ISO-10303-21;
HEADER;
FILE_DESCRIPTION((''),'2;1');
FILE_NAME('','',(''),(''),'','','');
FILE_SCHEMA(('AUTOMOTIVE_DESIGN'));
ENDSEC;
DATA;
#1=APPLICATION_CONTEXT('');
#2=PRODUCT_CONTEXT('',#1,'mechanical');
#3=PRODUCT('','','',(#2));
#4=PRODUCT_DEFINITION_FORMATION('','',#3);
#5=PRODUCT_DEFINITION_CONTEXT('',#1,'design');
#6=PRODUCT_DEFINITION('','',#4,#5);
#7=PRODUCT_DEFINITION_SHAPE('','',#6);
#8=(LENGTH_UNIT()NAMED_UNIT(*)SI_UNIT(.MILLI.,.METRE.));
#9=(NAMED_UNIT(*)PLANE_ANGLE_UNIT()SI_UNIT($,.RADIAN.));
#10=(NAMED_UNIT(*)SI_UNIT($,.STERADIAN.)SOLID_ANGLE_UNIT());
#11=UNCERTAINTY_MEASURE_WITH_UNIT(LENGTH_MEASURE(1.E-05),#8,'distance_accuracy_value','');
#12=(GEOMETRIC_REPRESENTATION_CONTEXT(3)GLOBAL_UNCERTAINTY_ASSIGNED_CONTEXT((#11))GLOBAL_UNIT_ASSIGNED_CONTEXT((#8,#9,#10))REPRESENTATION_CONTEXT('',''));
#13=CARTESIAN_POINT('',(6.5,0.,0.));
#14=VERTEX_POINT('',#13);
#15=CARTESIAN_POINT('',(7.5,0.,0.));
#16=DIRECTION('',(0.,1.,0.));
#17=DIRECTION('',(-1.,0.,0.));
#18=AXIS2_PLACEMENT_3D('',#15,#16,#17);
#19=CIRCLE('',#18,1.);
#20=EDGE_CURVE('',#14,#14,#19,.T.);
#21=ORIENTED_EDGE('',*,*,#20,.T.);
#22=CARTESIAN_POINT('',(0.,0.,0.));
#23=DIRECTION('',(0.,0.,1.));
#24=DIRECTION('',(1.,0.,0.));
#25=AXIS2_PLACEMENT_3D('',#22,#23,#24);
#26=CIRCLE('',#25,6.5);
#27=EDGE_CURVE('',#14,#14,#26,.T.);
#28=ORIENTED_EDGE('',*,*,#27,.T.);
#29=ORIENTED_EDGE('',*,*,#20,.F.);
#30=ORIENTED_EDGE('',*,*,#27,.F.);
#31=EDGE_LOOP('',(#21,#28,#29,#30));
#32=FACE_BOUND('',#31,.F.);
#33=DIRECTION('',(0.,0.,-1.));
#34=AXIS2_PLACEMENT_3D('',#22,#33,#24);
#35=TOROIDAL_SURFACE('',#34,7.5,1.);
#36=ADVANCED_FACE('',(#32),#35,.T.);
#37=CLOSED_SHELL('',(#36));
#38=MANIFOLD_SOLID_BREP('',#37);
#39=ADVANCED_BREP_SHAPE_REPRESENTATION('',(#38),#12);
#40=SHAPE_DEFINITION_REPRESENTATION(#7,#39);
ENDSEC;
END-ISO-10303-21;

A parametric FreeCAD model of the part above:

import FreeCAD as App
import Part
import Sketcher

V = App.Vector

doc = App.newDocument("Part")
body = doc.addObject("PartDesign::Body", "Body")

# Sketch on XZ plane
sketch1 = body.newObject("Sketcher::SketchObject", "Sketch")
sketch1.AttachmentSupport = (doc.getObject("XZ_Plane"), [""])
sketch1.MapMode = "FlatFace"
sketch1.addGeometry(Part.Circle(V(7.5, 0, 0), V(0, 0, 1), 1), False)
sketch1.addConstraint(Sketcher.Constraint("PointOnObject", 0, 3, -1))
sketch1.addConstraint(Sketcher.Constraint("Diameter", 0, 2.0))
sketch1.addConstraint(Sketcher.Constraint("DistanceX", -1, 1, 0, 3, 7.5))
revolution = body.newObject("PartDesign::Revolution", "Revolution")
revolution.Profile = sketch1
revolution.ReferenceAxis = (sketch1, ["V_Axis"])
revolution.Angle = 360

doc.recompute()
